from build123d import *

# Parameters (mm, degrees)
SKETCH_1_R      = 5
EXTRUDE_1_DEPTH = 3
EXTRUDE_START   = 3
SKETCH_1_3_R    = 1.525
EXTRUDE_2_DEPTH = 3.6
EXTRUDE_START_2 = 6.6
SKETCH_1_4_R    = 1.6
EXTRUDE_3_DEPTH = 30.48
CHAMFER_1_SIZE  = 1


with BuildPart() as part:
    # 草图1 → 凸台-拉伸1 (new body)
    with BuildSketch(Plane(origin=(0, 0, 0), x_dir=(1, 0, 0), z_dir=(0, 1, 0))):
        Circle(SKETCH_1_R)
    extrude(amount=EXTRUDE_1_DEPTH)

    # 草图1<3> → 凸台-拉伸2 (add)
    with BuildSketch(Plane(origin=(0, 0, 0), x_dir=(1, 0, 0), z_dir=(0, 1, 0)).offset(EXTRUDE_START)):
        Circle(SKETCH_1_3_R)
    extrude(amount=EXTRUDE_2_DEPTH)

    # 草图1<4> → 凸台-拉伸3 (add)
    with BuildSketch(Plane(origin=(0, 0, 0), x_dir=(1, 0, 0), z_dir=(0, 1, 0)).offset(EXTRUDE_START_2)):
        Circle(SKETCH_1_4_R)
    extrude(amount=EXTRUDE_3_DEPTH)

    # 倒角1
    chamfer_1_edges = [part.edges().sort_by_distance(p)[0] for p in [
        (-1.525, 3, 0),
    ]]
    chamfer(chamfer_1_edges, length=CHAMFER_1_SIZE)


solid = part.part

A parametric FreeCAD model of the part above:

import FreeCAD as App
import Part
import Sketcher
from FreeCAD import Vector


def edges_at(feature, points):
    """Names of the edges that pass closest to the given points."""
    edges = feature.Shape.Edges
    near = lambda p: min(range(len(edges)), key=lambda i: edges[i].distToShape(Part.Vertex(*p))[0])
    return sorted({f"Edge{near(p) + 1}" for p in points})

doc = App.newDocument("Part")
params = doc.addObject("Spreadsheet::Sheet", "Params")
for row, (alias, value) in enumerate([
    ("sketch1_diameter", "10 mm"),
    ("pad1_length", "3 mm"),
    ("sketch2_diameter", "3.05 mm"),
    ("pad2_length", "3.6 mm"),
    ("sketch3_diameter", "3.2 mm"),
    ("pad3_length", "30.48 mm"),
    ("chamfer_size", "1 mm"),
], start=1):
    params.set(f"A{row}", alias)
    params.set(f"B{row}", "=" + value)
    params.setAlias(f"B{row}", alias)

body = doc.addObject("PartDesign::Body", "Body")

# Sketch on XZ plane
sketch1 = doc.addObject("Sketcher::SketchObject", "Sketch")
body.addObject(sketch1)
sketch1.AttachmentSupport = (doc.XZ_Plane, [""])
sketch1.MapMode = "FlatFace"
sketch1.addGeometry(Part.Circle(Vector(0, 0, 0), Vector(0, 0, 1), 5), False)
sketch1.addConstraint([
    Sketcher.Constraint("Coincident", 0, 3, -1, 1),
    Sketcher.Constraint("Diameter", 0, 10.0),
])
sketch1.setExpression("Constraints[1]", "Params.sketch1_diameter")
pad1 = doc.addObject("PartDesign::Pad", "Pad")
body.addObject(pad1)
pad1.Profile = sketch1
pad1.setExpression("Length", "Params.pad1_length")
pad1.Reversed = True

# Sketch on XZ plane
sketch2 = doc.addObject("Sketcher::SketchObject", "Sketch001")
body.addObject(sketch2)
sketch2.AttachmentSupport = (doc.XZ_Plane, [""])
sketch2.MapMode = "FlatFace"
sketch2.AttachmentOffset = App.Placement(Vector(0, 0, -3), App.Rotation())
sketch2.addGeometry(Part.Circle(Vector(0, 0, 0), Vector(0, 0, 1), 1.5), False)
sketch2.addConstraint([
    Sketcher.Constraint("Coincident", 0, 3, -1, 1),
    Sketcher.Constraint("Diameter", 0, 3.05),
])
sketch2.setExpression("Constraints[1]", "Params.sketch2_diameter")
pad2 = doc.addObject("PartDesign::Pad", "Pad001")
body.addObject(pad2)
pad2.Profile = sketch2
pad2.setExpression("Length", "Params.pad2_length")
pad2.Reversed = True

# Sketch on XZ plane
sketch3 = doc.addObject("Sketcher::SketchObject", "Sketch002")
body.addObject(sketch3)
sketch3.AttachmentSupport = (doc.XZ_Plane, [""])
sketch3.MapMode = "FlatFace"
sketch3.AttachmentOffset = App.Placement(Vector(0, 0, -6.6), App.Rotation())
sketch3.addGeometry(Part.Circle(Vector(0, 0, 0), Vector(0, 0, 1), 1.6), False)
sketch3.addConstraint([
    Sketcher.Constraint("Coincident", 0, 3, -1, 1),
    Sketcher.Constraint("Diameter", 0, 3.2),
])
sketch3.setExpression("Constraints[1]", "Params.sketch3_diameter")
pad3 = doc.addObject("PartDesign::Pad", "Pad002")
body.addObject(pad3)
pad3.Profile = sketch3
pad3.setExpression("Length", "Params.pad3_length")
pad3.Reversed = True
doc.recompute()

chamfer = doc.addObject("PartDesign::Chamfer", "Chamfer")
body.addObject(chamfer)
chamfer.Base = (pad3, edges_at(pad3, [(-1.525, 3, 0)]))
chamfer.setExpression("Size", "Params.chamfer_size")

doc.recompute()
